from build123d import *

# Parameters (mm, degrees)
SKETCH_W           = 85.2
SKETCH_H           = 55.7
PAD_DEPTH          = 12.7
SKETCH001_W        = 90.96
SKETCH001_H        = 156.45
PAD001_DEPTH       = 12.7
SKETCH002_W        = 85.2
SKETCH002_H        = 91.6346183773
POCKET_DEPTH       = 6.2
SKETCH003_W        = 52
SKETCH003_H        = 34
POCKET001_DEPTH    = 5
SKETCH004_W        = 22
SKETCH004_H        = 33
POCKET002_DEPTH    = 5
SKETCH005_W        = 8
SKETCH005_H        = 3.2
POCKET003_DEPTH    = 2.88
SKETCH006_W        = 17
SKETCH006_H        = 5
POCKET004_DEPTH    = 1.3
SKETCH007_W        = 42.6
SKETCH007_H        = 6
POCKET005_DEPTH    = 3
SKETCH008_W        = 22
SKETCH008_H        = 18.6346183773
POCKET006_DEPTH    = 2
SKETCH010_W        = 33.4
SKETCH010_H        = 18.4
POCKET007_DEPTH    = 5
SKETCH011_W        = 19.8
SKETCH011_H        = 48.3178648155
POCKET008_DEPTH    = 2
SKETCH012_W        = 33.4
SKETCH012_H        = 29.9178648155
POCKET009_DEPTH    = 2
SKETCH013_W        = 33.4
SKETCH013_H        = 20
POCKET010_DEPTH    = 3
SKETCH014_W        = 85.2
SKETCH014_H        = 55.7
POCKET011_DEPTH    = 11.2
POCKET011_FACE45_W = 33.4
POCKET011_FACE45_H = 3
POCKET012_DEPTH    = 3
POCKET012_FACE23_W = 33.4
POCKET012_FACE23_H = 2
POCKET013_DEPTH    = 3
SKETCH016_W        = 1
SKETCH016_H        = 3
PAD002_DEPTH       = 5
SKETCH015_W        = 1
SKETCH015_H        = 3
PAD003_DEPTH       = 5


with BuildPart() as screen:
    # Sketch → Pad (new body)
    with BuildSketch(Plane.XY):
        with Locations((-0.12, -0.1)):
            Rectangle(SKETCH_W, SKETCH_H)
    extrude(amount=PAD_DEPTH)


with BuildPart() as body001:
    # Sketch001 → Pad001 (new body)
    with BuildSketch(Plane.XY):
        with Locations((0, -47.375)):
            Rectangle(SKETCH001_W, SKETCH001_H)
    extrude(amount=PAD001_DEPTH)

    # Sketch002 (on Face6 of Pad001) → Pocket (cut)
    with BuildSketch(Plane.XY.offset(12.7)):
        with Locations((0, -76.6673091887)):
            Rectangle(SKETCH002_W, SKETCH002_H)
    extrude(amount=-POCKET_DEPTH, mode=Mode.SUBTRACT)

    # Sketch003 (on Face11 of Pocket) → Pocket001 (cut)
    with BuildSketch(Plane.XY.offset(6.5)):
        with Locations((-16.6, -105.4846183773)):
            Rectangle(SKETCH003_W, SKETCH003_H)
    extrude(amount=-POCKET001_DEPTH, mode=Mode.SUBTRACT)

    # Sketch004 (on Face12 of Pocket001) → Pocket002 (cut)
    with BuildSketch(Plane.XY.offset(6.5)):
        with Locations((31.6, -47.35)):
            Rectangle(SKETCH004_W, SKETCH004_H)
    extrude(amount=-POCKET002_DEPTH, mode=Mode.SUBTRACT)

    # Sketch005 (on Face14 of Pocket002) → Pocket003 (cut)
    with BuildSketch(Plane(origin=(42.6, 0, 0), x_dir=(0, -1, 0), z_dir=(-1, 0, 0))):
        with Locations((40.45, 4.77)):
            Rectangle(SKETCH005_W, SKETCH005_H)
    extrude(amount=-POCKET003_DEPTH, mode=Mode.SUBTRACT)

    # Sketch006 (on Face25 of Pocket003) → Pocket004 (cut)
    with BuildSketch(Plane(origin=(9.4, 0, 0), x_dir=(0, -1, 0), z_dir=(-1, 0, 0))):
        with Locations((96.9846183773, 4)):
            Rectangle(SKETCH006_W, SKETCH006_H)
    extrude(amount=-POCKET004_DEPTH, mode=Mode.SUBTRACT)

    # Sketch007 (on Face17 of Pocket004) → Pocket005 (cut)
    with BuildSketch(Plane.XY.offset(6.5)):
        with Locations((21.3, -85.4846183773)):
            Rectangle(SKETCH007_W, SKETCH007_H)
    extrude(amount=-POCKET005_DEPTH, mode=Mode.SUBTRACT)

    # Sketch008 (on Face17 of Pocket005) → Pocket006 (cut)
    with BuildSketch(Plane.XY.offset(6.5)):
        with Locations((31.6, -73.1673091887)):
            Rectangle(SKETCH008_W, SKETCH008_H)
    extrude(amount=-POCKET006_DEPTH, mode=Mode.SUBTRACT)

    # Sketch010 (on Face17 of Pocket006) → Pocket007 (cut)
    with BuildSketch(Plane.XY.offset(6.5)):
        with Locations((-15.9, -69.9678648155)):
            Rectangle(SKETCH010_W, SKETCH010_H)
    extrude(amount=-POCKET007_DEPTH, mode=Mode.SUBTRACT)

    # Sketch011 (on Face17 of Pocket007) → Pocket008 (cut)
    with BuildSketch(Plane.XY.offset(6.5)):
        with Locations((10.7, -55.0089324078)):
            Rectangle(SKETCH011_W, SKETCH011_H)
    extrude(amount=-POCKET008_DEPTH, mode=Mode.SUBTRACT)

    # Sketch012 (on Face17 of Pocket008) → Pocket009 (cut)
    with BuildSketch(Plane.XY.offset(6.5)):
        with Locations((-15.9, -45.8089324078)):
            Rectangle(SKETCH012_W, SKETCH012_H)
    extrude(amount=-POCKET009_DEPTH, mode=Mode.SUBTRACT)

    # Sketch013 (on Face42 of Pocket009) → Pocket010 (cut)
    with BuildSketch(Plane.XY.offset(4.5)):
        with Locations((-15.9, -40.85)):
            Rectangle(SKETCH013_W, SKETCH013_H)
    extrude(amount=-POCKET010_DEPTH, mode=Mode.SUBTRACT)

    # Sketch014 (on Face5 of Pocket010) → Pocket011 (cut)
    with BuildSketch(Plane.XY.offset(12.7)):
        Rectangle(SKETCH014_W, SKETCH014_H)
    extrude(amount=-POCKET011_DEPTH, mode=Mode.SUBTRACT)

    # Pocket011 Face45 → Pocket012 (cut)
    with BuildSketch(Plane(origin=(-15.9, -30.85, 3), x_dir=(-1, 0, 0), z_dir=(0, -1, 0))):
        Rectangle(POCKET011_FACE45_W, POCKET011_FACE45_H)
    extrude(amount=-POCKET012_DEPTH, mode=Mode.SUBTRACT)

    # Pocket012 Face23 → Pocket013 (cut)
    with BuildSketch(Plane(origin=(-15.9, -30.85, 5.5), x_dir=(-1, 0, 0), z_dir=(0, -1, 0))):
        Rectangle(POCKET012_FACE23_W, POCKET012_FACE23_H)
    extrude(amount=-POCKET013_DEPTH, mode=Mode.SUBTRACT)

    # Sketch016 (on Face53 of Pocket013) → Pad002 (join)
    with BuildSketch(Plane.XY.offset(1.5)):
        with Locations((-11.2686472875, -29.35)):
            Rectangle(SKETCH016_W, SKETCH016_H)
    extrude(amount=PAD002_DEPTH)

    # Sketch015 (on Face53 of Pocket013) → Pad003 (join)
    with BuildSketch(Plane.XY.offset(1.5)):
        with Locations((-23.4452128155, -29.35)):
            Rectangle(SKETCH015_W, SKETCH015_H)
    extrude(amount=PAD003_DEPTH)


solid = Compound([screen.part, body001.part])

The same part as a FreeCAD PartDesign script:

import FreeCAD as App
import Part
import Sketcher

doc = App.newDocument("Part")
body = doc.addObject("PartDesign::Body", "Body")

sketch1 = body.newObject("Sketcher::SketchObject", "Sketch")
sketch1.AttachmentSupport = (doc.getObject("XY_Plane"), [""])
sketch1.MapMode = "FlatFace"
sketch1.addGeometry([
    Part.LineSegment(App.Vector(-42.72, 27.75, 0), App.Vector(-42.72, -27.95, 0)),
    Part.LineSegment(App.Vector(-42.72, -27.95, 0), App.Vector(42.48, -27.95, 0)),
    Part.LineSegment(App.Vector(42.48, -27.95, 0), App.Vector(42.48, 27.75, 0)),
    Part.LineSegment(App.Vector(42.48, 27.75, 0), App.Vector(-42.72, 27.75, 0)),
], False)
sketch1.addConstraint([
    Sketcher.Constraint("Coincident", 0, 2, 1, 1),
    Sketcher.Constraint("Coincident", 1, 2, 2, 1),
    Sketcher.Constraint("Coincident", 2, 2, 3, 1),
    Sketcher.Constraint("Coincident", 3, 2, 0, 1),
    Sketcher.Constraint("Vertical", 0),
    Sketcher.Constraint("Horizontal", 1),
    Sketcher.Constraint("Vertical", 2),
    Sketcher.Constraint("Horizontal", 3),
    Sketcher.Constraint("DistanceX", 1, 1, 1, 2, 85.2),
    Sketcher.Constraint("DistanceY", 0, 2, 0, 1, 55.7),
    Sketcher.Constraint("DistanceX", 0, 2, -1, 1, 42.72),
    Sketcher.Constraint("DistanceY", 0, 2, -1, 1, 27.95),
])
pad1 = body.newObject("PartDesign::Pad", "Pad")
pad1.Profile = sketch1
pad1.Length = 12.7
body2 = doc.addObject("PartDesign::Body", "Body001")

sketch2 = body2.newObject("Sketcher::SketchObject", "Sketch001")
sketch2.AttachmentSupport = (doc.getObject("XY_Plane001"), [""])
sketch2.MapMode = "FlatFace"
sketch2.addGeometry([
    Part.LineSegment(App.Vector(-45.48, 30.85, 0), App.Vector(-45.48, -125.6, 0)),
    Part.LineSegment(App.Vector(-45.48, -125.6, 0), App.Vector(45.48, -125.6, 0)),
    Part.LineSegment(App.Vector(45.48, -125.6, 0), App.Vector(45.48, 30.85, 0)),
    Part.LineSegment(App.Vector(45.48, 30.85, 0), App.Vector(-45.48, 30.85, 0)),
], False)
sketch2.addConstraint([
    Sketcher.Constraint("Coincident", 0, 2, 1, 1),
    Sketcher.Constraint("Coincident", 1, 2, 2, 1),
    Sketcher.Constraint("Coincident", 2, 2, 3, 1),
    Sketcher.Constraint("Coincident", 3, 2, 0, 1),
    Sketcher.Constraint("Vertical", 0),
    Sketcher.Constraint("Horizontal", 1),
    Sketcher.Constraint("Vertical", 2),
    Sketcher.Constraint("Horizontal", 3),
    Sketcher.Constraint("DistanceX", 1, 1, 1, 2, 90.96),
    Sketcher.Constraint("DistanceY", 0, 2, 0, 1, 156.45),
    Sketcher.Constraint("DistanceY", 0, 2, -1, 1, 125.6),
    Sketcher.Constraint("DistanceX", 0, 2, -1, 1, 45.48),
])
pad2 = body2.newObject("PartDesign::Pad", "Pad001")
pad2.Profile = sketch2
pad2.Length = 12.7

sketch3 = body2.newObject("Sketcher::SketchObject", "Sketch002")
sketch3.AttachmentSupport = (doc.getObject("XY_Plane001"), [""])
sketch3.MapMode = "FlatFace"
sketch3.AttachmentOffset = App.Placement(App.Vector(0, 0, 12.7), App.Rotation())
sketch3.addGeometry([
    Part.LineSegment(App.Vector(-42.6, -30.85, 0), App.Vector(-42.6, -122.484618, 0)),
    Part.LineSegment(App.Vector(-42.6, -122.484618, 0), App.Vector(42.6, -122.484618, 0)),
    Part.LineSegment(App.Vector(42.6, -122.484618, 0), App.Vector(42.6, -30.85, 0)),
    Part.LineSegment(App.Vector(42.6, -30.85, 0), App.Vector(-42.6, -30.85, 0)),
], False)
sketch3.addConstraint([
    Sketcher.Constraint("Coincident", 0, 2, 1, 1),
    Sketcher.Constraint("Coincident", 1, 2, 2, 1),
    Sketcher.Constraint("Coincident", 2, 2, 3, 1),
    Sketcher.Constraint("Coincident", 3, 2, 0, 1),
    Sketcher.Constraint("Vertical", 0),
    Sketcher.Constraint("Horizontal", 1),
    Sketcher.Constraint("Vertical", 2),
    Sketcher.Constraint("Horizontal", 3),
    Sketcher.Constraint("DistanceX", 1, 1, 1, 2, 85.2),
    Sketcher.Constraint("DistanceX", 0, 2, -1, 1, 42.6),
    Sketcher.Constraint("DistanceY", 2, 2, -1, 1, 30.85),
    Sketcher.Constraint("DistanceY", 0, 2, 0, 1, 91.634618),
])
pocket1 = body2.newObject("PartDesign::Pocket", "Pocket")
pocket1.Profile = sketch3
pocket1.Length = 6.2

sketch4 = body2.newObject("Sketcher::SketchObject", "Sketch003")
sketch4.AttachmentSupport = (doc.getObject("XY_Plane001"), [""])
sketch4.MapMode = "FlatFace"
sketch4.AttachmentOffset = App.Placement(App.Vector(0, 0, 6.5), App.Rotation())
sketch4.addGeometry([
    Part.LineSegment(App.Vector(-42.6, -88.484618, 0), App.Vector(-42.6, -122.484618, 0)),
    Part.LineSegment(App.Vector(-42.6, -122.484618, 0), App.Vector(9.4, -122.484618, 0)),
    Part.LineSegment(App.Vector(9.4, -122.484618, 0), App.Vector(9.4, -88.484618, 0)),
    Part.LineSegment(App.Vector(9.4, -88.484618, 0), App.Vector(-42.6, -88.484618, 0)),
], False)
sketch4.addConstraint([
    Sketcher.Constraint("Coincident", 0, 2, 1, 1),
    Sketcher.Constraint("Coincident", 1, 2, 2, 1),
    Sketcher.Constraint("Coincident", 2, 2, 3, 1),
    Sketcher.Constraint("Coincident", 3, 2, 0, 1),
    Sketcher.Constraint("Vertical", 0),
    Sketcher.Constraint("Horizontal", 1),
    Sketcher.Constraint("Vertical", 2),
    Sketcher.Constraint("Horizontal", 3),
    Sketcher.Constraint("DistanceX", 1, 1, 1, 2, 52.0),
    Sketcher.Constraint("DistanceY", 0, 2, 0, 1, 34.0),
    Sketcher.Constraint("DistanceX", 0, 2, -1, 1, 42.6),
    Sketcher.Constraint("DistanceY", 0, 2, -1, 1, 122.484618),
])
pocket2 = body2.newObject("PartDesign::Pocket", "Pocket001")
pocket2.Profile = sketch4
pocket2.Length = 5

sketch5 = body2.newObject("Sketcher::SketchObject", "Sketch004")
sketch5.AttachmentSupport = (doc.getObject("XY_Plane001"), [""])
sketch5.MapMode = "FlatFace"
sketch5.AttachmentOffset = App.Placement(App.Vector(0, 0, 6.5), App.Rotation())
sketch5.addGeometry([
    Part.LineSegment(App.Vector(20.6, -30.85, 0), App.Vector(20.6, -63.85, 0)),
    Part.LineSegment(App.Vector(20.6, -63.85, 0), App.Vector(42.6, -63.85, 0)),
    Part.LineSegment(App.Vector(42.6, -63.85, 0), App.Vector(42.6, -30.85, 0)),
    Part.LineSegment(App.Vector(42.6, -30.85, 0), App.Vector(20.6, -30.85, 0)),
], False)
sketch5.addConstraint([
    Sketcher.Constraint("Coincident", 0, 2, 1, 1),
    Sketcher.Constraint("Coincident", 1, 2, 2, 1),
    Sketcher.Constraint("Coincident", 2, 2, 3, 1),
    Sketcher.Constraint("Coincident", 3, 2, 0, 1),
    Sketcher.Constraint("Vertical", 0),
    Sketcher.Constraint("Horizontal", 1),
    Sketcher.Constraint("Vertical", 2),
    Sketcher.Constraint("Horizontal", 3),
    Sketcher.Constraint("DistanceX", 1, 1, 1, 2, 22.0),
    Sketcher.Constraint("DistanceY", 0, 2, 0, 1, 33.0),
    Sketcher.Constraint("DistanceX", -1, 1, 0, 2, 20.6),
    Sketcher.Constraint("DistanceY", 0, 2, -1, 1, 63.85),
])
pocket3 = body2.newObject("PartDesign::Pocket", "Pocket002")
pocket3.Profile = sketch5
pocket3.Length = 5

sketch6 = body2.newObject("Sketcher::SketchObject", "Sketch005")
sketch6.AttachmentSupport = (doc.getObject("YZ_Plane001"), [""])
sketch6.MapMode = "FlatFace"
sketch6.AttachmentOffset = App.Placement(App.Vector(0, 0, 42.6), App.Rotation())
sketch6.addGeometry([
    Part.LineSegment(App.Vector(-36.45, 6.37, 0), App.Vector(-36.45, 3.17, 0)),
    Part.LineSegment(App.Vector(-36.45, 3.17, 0), App.Vector(-44.45, 3.17, 0)),
    Part.LineSegment(App.Vector(-44.45, 3.17, 0), App.Vector(-44.45, 6.37, 0)),
    Part.LineSegment(App.Vector(-44.45, 6.37, 0), App.Vector(-36.45, 6.37, 0)),
], False)
sketch6.addConstraint([
    Sketcher.Constraint("Coincident", 0, 2, 1, 1),
    Sketcher.Constraint("Coincident", 1, 2, 2, 1),
    Sketcher.Constraint("Coincident", 2, 2, 3, 1),
    Sketcher.Constraint("Coincident", 3, 2, 0, 1),
    Sketcher.Constraint("Vertical", 0),
    Sketcher.Constraint("Horizontal", 1),
    Sketcher.Constraint("Vertical", 2),
    Sketcher.Constraint("Horizontal", 3),
    Sketcher.Constraint("DistanceX", 1, 2, 1, 1, 8.0),
    Sketcher.Constraint("DistanceY", 0, 2, 0, 1, 3.2),
    Sketcher.Constraint("DistanceX", 0, 2, -1, 1, 36.45),
    Sketcher.Constraint("DistanceY", -1, 1, 0, 2, 3.17),
])
pocket4 = body2.newObject("PartDesign::Pocket", "Pocket003")
pocket4.Profile = sketch6
pocket4.Length = 2.88
pocket4.Reversed = True

sketch7 = body2.newObject("Sketcher::SketchObject", "Sketch006")
sketch7.AttachmentSupport = (doc.getObject("YZ_Plane001"), [""])
sketch7.MapMode = "FlatFace"
sketch7.AttachmentOffset = App.Placement(App.Vector(0, 0, 9.4), App.Rotation())
sketch7.addGeometry([
    Part.LineSegment(App.Vector(-88.484618, 6.5, 0), App.Vector(-88.484618, 1.5, 0)),
    Part.LineSegment(App.Vector(-88.484618, 1.5, 0), App.Vector(-105.484618, 1.5, 0)),
    Part.LineSegment(App.Vector(-105.484618, 1.5, 0), App.Vector(-105.484618, 6.5, 0)),
    Part.LineSegment(App.Vector(-105.484618, 6.5, 0), App.Vector(-88.484618, 6.5, 0)),
], False)
sketch7.addConstraint([
    Sketcher.Constraint("Coincident", 0, 2, 1, 1),
    Sketcher.Constraint("Coincident", 1, 2, 2, 1),
    Sketcher.Constraint("Coincident", 2, 2, 3, 1),
    Sketcher.Constraint("Coincident", 3, 2, 0, 1),
    Sketcher.Constraint("Vertical", 0),
    Sketcher.Constraint("Horizontal", 1),
    Sketcher.Constraint("Vertical", 2),
    Sketcher.Constraint("Horizontal", 3),
    Sketcher.Constraint("DistanceX", 1, 2, 1, 1, 17.0),
    Sketcher.Constraint("DistanceY", 0, 2, 0, 1, 5.0),
    Sketcher.Constraint("DistanceY", -1, 1, 0, 2, 1.5),
    Sketcher.Constraint("DistanceX", 0, 2, -1, 1, 88.484618),
])
pocket5 = body2.newObject("PartDesign::Pocket", "Pocket004")
pocket5.Profile = sketch7
pocket5.Length = 1.3
pocket5.Reversed = True

sketch8 = body2.newObject("Sketcher::SketchObject", "Sketch007")
sketch8.AttachmentSupport = (doc.getObject("XY_Plane001"), [""])
sketch8.MapMode = "FlatFace"
sketch8.AttachmentOffset = App.Placement(App.Vector(0, 0, 6.5), App.Rotation())
sketch8.addGeometry([
    Part.LineSegment(App.Vector(0, -82.484618, 0), App.Vector(0, -88.484618, 0)),
    Part.LineSegment(App.Vector(0, -88.484618, 0), App.Vector(42.6, -88.484618, 0)),
    Part.LineSegment(App.Vector(42.6, -88.484618, 0), App.Vector(42.6, -82.484618, 0)),
    Part.LineSegment(App.Vector(42.6, -82.484618, 0), App.Vector(0, -82.484618, 0)),
], False)
sketch8.addConstraint([
    Sketcher.Constraint("Coincident", 0, 2, 1, 1),
    Sketcher.Constraint("Coincident", 1, 2, 2, 1),
    Sketcher.Constraint("Coincident", 2, 2, 3, 1),
    Sketcher.Constraint("Coincident", 3, 2, 0, 1),
    Sketcher.Constraint("Vertical", 0),
    Sketcher.Constraint("Horizontal", 1),
    Sketcher.Constraint("Vertical", 2),
    Sketcher.Constraint("Horizontal", 3),
    Sketcher.Constraint("PointOnObject", 0, 2, -2),
    Sketcher.Constraint("DistanceY", 0, 2, 0, 1, 6.0),
    Sketcher.Constraint("DistanceX", 1, 1, 1, 2, 42.6),
    Sketcher.Constraint("DistanceY", 0, 2, -1, 1, 88.484618),
])
pocket6 = body2.newObject("PartDesign::Pocket", "Pocket005")
pocket6.Profile = sketch8
pocket6.Length = 3

sketch9 = body2.newObject("Sketcher::SketchObject", "Sketch008")
sketch9.AttachmentSupport = (doc.getObject("XY_Plane001"), [""])
sketch9.MapMode = "FlatFace"
sketch9.AttachmentOffset = App.Placement(App.Vector(0, 0, 6.5), App.Rotation())
sketch9.addGeometry([
    Part.LineSegment(App.Vector(20.6, -63.85, 0), App.Vector(20.6, -82.484618, 0)),
    Part.LineSegment(App.Vector(20.6, -82.484618, 0), App.Vector(42.6, -82.484618, 0)),
    Part.LineSegment(App.Vector(42.6, -82.484618, 0), App.Vector(42.6, -63.85, 0)),
    Part.LineSegment(App.Vector(42.6, -63.85, 0), App.Vector(20.6, -63.85, 0)),
], False)
sketch9.addConstraint([
    Sketcher.Constraint("Coincident", 0, 2, 1, 1),
    Sketcher.Constraint("Coincident", 1, 2, 2, 1),
    Sketcher.Constraint("Coincident", 2, 2, 3, 1),
    Sketcher.Constraint("Coincident", 3, 2, 0, 1),
    Sketcher.Constraint("Vertical", 0),
    Sketcher.Constraint("Horizontal", 1),
    Sketcher.Constraint("Vertical", 2),
    Sketcher.Constraint("Horizontal", 3),
    Sketcher.Constraint("DistanceX", 1, 1, 1, 2, 22.0),
    Sketcher.Constraint("DistanceX", -1, 1, 0, 2, 20.6),
    Sketcher.Constraint("DistanceY", 2, 2, -1, 1, 63.85),
    Sketcher.Constraint("DistanceY", 0, 2, 0, 1, 18.634618),
])
pocket7 = body2.newObject("PartDesign::Pocket", "Pocket006")
pocket7.Profile = sketch9
pocket7.Length = 2

sketch10 = body2.newObject("Sketcher::SketchObject", "Sketch009")
sketch10.AttachmentSupport = (doc.getObject("XY_Plane001"), [""])
sketch10.MapMode = "FlatFace"
sketch10.AttachmentOffset = App.Placement(App.Vector(0, 0, 6.5), App.Rotation())
sketch10.addGeometry([
    Part.LineSegment(App.Vector(-32.6, -60.767865, 0), App.Vector(-32.6, -79.167865, 0)),
    Part.LineSegment(App.Vector(-32.6, -79.167865, 0), App.Vector(0.8, -79.167865, 0)),
    Part.LineSegment(App.Vector(0.8, -79.167865, 0), App.Vector(0.8, -60.767865, 0)),
    Part.LineSegment(App.Vector(0.8, -60.767865, 0), App.Vector(-32.6, -60.767865, 0)),
], False)
sketch10.addConstraint([
    Sketcher.Constraint("Coincident", 0, 2, 1, 1),
    Sketcher.Constraint("Coincident", 1, 2, 2, 1),
    Sketcher.Constraint("Coincident", 2, 2, 3, 1),
    Sketcher.Constraint("Coincident", 3, 2, 0, 1),
    Sketcher.Constraint("Vertical", 0),
    Sketcher.Constraint("Horizontal", 1),
    Sketcher.Constraint("Vertical", 2),
    Sketcher.Constraint("Horizontal", 3),
    Sketcher.Constraint("DistanceX", 1, 1, 1, 2, 33.4),
    Sketcher.Constraint("DistanceY", 0, 2, 0, 1, 18.4),
    Sketcher.Constraint("DistanceX", 0, 2, -1, 1, 32.6),
    Sketcher.Constraint("DistanceY", 0, 2, -1, 1, 79.167865),
])
pocket8 = body2.newObject("PartDesign::Pocket", "Pocket007")
pocket8.Profile = sketch10
pocket8.Length = 5

sketch11 = body2.newObject("Sketcher::SketchObject", "Sketch010")
sketch11.AttachmentSupport = (doc.getObject("XY_Plane001"), [""])
sketch11.MapMode = "FlatFace"
sketch11.AttachmentOffset = App.Placement(App.Vector(0, 0, 6.5), App.Rotation())
sketch11.addGeometry([
    Part.LineSegment(App.Vector(0.8, -30.85, 0), App.Vector(0.8, -79.167865, 0)),
    Part.LineSegment(App.Vector(0.8, -79.167865, 0), App.Vector(20.6, -79.167865, 0)),
    Part.LineSegment(App.Vector(20.6, -79.167865, 0), App.Vector(20.6, -30.85, 0)),
    Part.LineSegment(App.Vector(20.6, -30.85, 0), App.Vector(0.8, -30.85, 0)),
], False)
sketch11.addConstraint([
    Sketcher.Constraint("Coincident", 0, 2, 1, 1),
    Sketcher.Constraint("Coincident", 1, 2, 2, 1),
    Sketcher.Constraint("Coincident", 2, 2, 3, 1),
    Sketcher.Constraint("Coincident", 3, 2, 0, 1),
    Sketcher.Constraint("Vertical", 0),
    Sketcher.Constraint("Horizontal", 1),
    Sketcher.Constraint("Vertical", 2),
    Sketcher.Constraint("Horizontal", 3),
    Sketcher.Constraint("DistanceX", 1, 1, 1, 2, 19.8),
    Sketcher.Constraint("DistanceX", -1, 1, 0, 2, 0.8),
    Sketcher.Constraint("DistanceY", 2, 2, -1, 1, 30.85),
    Sketcher.Constraint("DistanceY", 0, 2, 0, 1, 48.317865),
])
pocket9 = body2.newObject("PartDesign::Pocket", "Pocket008")
pocket9.Profile = sketch11
pocket9.Length = 2

sketch12 = body2.newObject("Sketcher::SketchObject", "Sketch011")
sketch12.AttachmentSupport = (doc.getObject("XY_Plane001"), [""])
sketch12.MapMode = "FlatFace"
sketch12.AttachmentOffset = App.Placement(App.Vector(0, 0, 6.5), App.Rotation())
sketch12.addGeometry([
    Part.LineSegment(App.Vector(-32.6, -30.85, 0), App.Vector(-32.6, -60.767865, 0)),
    Part.LineSegment(App.Vector(-32.6, -60.767865, 0), App.Vector(0.8, -60.767865, 0)),
    Part.LineSegment(App.Vector(0.8, -60.767865, 0), App.Vector(0.8, -30.85, 0)),
    Part.LineSegment(App.Vector(0.8, -30.85, 0), App.Vector(-32.6, -30.85, 0)),
], False)
sketch12.addConstraint([
    Sketcher.Constraint("Coincident", 0, 2, 1, 1),
    Sketcher.Constraint("Coincident", 1, 2, 2, 1),
    Sketcher.Constraint("Coincident", 2, 2, 3, 1),
    Sketcher.Constraint("Coincident", 3, 2, 0, 1),
    Sketcher.Constraint("Vertical", 0),
    Sketcher.Constraint("Horizontal", 1),
    Sketcher.Constraint("Vertical", 2),
    Sketcher.Constraint("Horizontal", 3),
    Sketcher.Constraint("DistanceX", 1, 1, 1, 2, 33.4),
    Sketcher.Constraint("DistanceX", 0, 2, -1, 1, 32.6),
    Sketcher.Constraint("DistanceY", 2, 2, -1, 1, 30.85),
    Sketcher.Constraint("DistanceY", 0, 2, 0, 1, 29.917865),
])
pocket10 = body2.newObject("PartDesign::Pocket", "Pocket009")
pocket10.Profile = sketch12
pocket10.Length = 2

sketch13 = body2.newObject("Sketcher::SketchObject", "Sketch012")
sketch13.AttachmentSupport = (doc.getObject("XY_Plane001"), [""])
sketch13.MapMode = "FlatFace"
sketch13.AttachmentOffset = App.Placement(App.Vector(0, 0, 4.5), App.Rotation())
sketch13.addGeometry([
    Part.LineSegment(App.Vector(-32.6, -30.85, 0), App.Vector(-32.6, -50.85, 0)),
    Part.LineSegment(App.Vector(-32.6, -50.85, 0), App.Vector(0.8, -50.85, 0)),
    Part.LineSegment(App.Vector(0.8, -50.85, 0), App.Vector(0.8, -30.85, 0)),
    Part.LineSegment(App.Vector(0.8, -30.85, 0), App.Vector(-32.6, -30.85, 0)),
], False)
sketch13.addConstraint([
    Sketcher.Constraint("Coincident", 0, 2, 1, 1),
    Sketcher.Constraint("Coincident", 1, 2, 2, 1),
    Sketcher.Constraint("Coincident", 2, 2, 3, 1),
    Sketcher.Constraint("Coincident", 3, 2, 0, 1),
    Sketcher.Constraint("Vertical", 0),
    Sketcher.Constraint("Horizontal", 1),
    Sketcher.Constraint("Vertical", 2),
    Sketcher.Constraint("Horizontal", 3),
    Sketcher.Constraint("DistanceY", 0, 2, 0, 1, 20.0),
    Sketcher.Constraint("DistanceX", 1, 1, 1, 2, 33.4),
    Sketcher.Constraint("DistanceX", 0, 2, -1, 1, 32.6),
    Sketcher.Constraint("DistanceY", 0, 2, -1, 1, 50.85),
])
pocket11 = body2.newObject("PartDesign::Pocket", "Pocket010")
pocket11.Profile = sketch13
pocket11.Length = 3

sketch14 = body2.newObject("Sketcher::SketchObject", "Sketch013")
sketch14.AttachmentSupport = (doc.getObject("XY_Plane001"), [""])
sketch14.MapMode = "FlatFace"
sketch14.AttachmentOffset = App.Placement(App.Vector(0, 0, 12.7), App.Rotation())
sketch14.addGeometry([
    Part.LineSegment(App.Vector(-42.6, 27.85, 0), App.Vector(-42.6, -27.85, 0)),
    Part.LineSegment(App.Vector(-42.6, -27.85, 0), App.Vector(42.6, -27.85, 0)),
    Part.LineSegment(App.Vector(42.6, -27.85, 0), App.Vector(42.6, 27.85, 0)),
    Part.LineSegment(App.Vector(42.6, 27.85, 0), App.Vector(-42.6, 27.85, 0)),
], False)
sketch14.addConstraint([
    Sketcher.Constraint("Coincident", 0, 2, 1, 1),
    Sketcher.Constraint("Coincident", 1, 2, 2, 1),
    Sketcher.Constraint("Coincident", 2, 2, 3, 1),
    Sketcher.Constraint("Coincident", 3, 2, 0, 1),
    Sketcher.Constraint("Vertical", 0),
    Sketcher.Constraint("Horizontal", 1),
    Sketcher.Constraint("Vertical", 2),
    Sketcher.Constraint("Horizontal", 3),
    Sketcher.Constraint("Symmetric", 0, 2, 2, 2, -1, 1),
    Sketcher.Constraint("DistanceX", 1, 1, 1, 2, 85.2),
    Sketcher.Constraint("DistanceY", 0, 2, 0, 1, 55.7),
])
pocket12 = body2.newObject("PartDesign::Pocket", "Pocket011")
pocket12.Profile = sketch14
pocket12.Length = 11.2

sketch15 = body2.newObject("Sketcher::SketchObject", "Sketch014")
sketch15.AttachmentSupport = (doc.getObject("XZ_Plane001"), [""])
sketch15.MapMode = "FlatFace"
sketch15.AttachmentOffset = App.Placement(App.Vector(0, 0, 30.85), App.Rotation())
sketch15.addGeometry([
    Part.LineSegment(App.Vector(0.8, 1.5, 0), App.Vector(0.8, 4.5, 0)),
    Part.LineSegment(App.Vector(0.8, 4.5, 0), App.Vector(-32.6, 4.5, 0)),
    Part.LineSegment(App.Vector(-32.6, 4.5, 0), App.Vector(-32.6, 1.5, 0)),
    Part.LineSegment(App.Vector(-32.6, 1.5, 0), App.Vector(0.8, 1.5, 0)),
], False)
sketch15.addConstraint([
    Sketcher.Constraint("Coincident", 0, 2, 1, 1),
    Sketcher.Constraint("Coincident", 1, 2, 2, 1),
    Sketcher.Constraint("Coincident", 2, 2, 3, 1),
    Sketcher.Constraint("Coincident", 3, 2, 0, 1),
    Sketcher.Constraint("Vertical", 0),
    Sketcher.Constraint("Horizontal", 1),
    Sketcher.Constraint("Vertical", 2),
    Sketcher.Constraint("Horizontal", 3),
    Sketcher.Constraint("DistanceY", 0, 1, 0, 2, 3.0),
    Sketcher.Constraint("DistanceX", 1, 2, 1, 1, 33.4),
    Sketcher.Constraint("DistanceX", -1, 1, 0, 2, 0.8),
    Sketcher.Constraint("DistanceY", -1, 1, 0, 2, 4.5),
])
pocket13 = body2.newObject("PartDesign::Pocket", "Pocket012")
pocket13.Profile = sketch15
pocket13.Length = 3

sketch16 = body2.newObject("Sketcher::SketchObject", "Sketch015")
sketch16.AttachmentSupport = (doc.getObject("XZ_Plane001"), [""])
sketch16.MapMode = "FlatFace"
sketch16.AttachmentOffset = App.Placement(App.Vector(0, 0, 30.85), App.Rotation())
sketch16.addGeometry([
    Part.LineSegment(App.Vector(0.8, 4.5, 0), App.Vector(0.8, 6.5, 0)),
    Part.LineSegment(App.Vector(0.8, 6.5, 0), App.Vector(-32.6, 6.5, 0)),
    Part.LineSegment(App.Vector(-32.6, 6.5, 0), App.Vector(-32.6, 4.5, 0)),
    Part.LineSegment(App.Vector(-32.6, 4.5, 0), App.Vector(0.8, 4.5, 0)),
], False)
sketch16.addConstraint([
    Sketcher.Constraint("Coincident", 0, 2, 1, 1),
    Sketcher.Constraint("Coincident", 1, 2, 2, 1),
    Sketcher.Constraint("Coincident", 2, 2, 3, 1),
    Sketcher.Constraint("Coincident", 3, 2, 0, 1),
    Sketcher.Constraint("Vertical", 0),
    Sketcher.Constraint("Horizontal", 1),
    Sketcher.Constraint("Vertical", 2),
    Sketcher.Constraint("Horizontal", 3),
    Sketcher.Constraint("DistanceY", 0, 1, 0, 2, 2.0),
    Sketcher.Constraint("DistanceX", 1, 2, 1, 1, 33.4),
    Sketcher.Constraint("DistanceX", -1, 1, 0, 2, 0.8),
    Sketcher.Constraint("DistanceY", -1, 1, 0, 2, 6.5),
])
pocket14 = body2.newObject("PartDesign::Pocket", "Pocket013")
pocket14.Profile = sketch16
pocket14.Length = 3

sketch17 = body2.newObject("Sketcher::SketchObject", "Sketch016")
sketch17.AttachmentSupport = (doc.getObject("XY_Plane001"), [""])
sketch17.MapMode = "FlatFace"
sketch17.AttachmentOffset = App.Placement(App.Vector(0, 0, 1.5), App.Rotation())
sketch17.addGeometry([
    Part.LineSegment(App.Vector(-11.768647, -27.85, 0), App.Vector(-11.768647, -30.85, 0)),
    Part.LineSegment(App.Vector(-11.768647, -30.85, 0), App.Vector(-10.768647, -30.85, 0)),
    Part.LineSegment(App.Vector(-10.768647, -30.85, 0), App.Vector(-10.768647, -27.85, 0)),
    Part.LineSegment(App.Vector(-10.768647, -27.85, 0), App.Vector(-11.768647, -27.85, 0)),
], False)
sketch17.addConstraint([
    Sketcher.Constraint("Coincident", 0, 2, 1, 1),
    Sketcher.Constraint("Coincident", 1, 2, 2, 1),
    Sketcher.Constraint("Coincident", 2, 2, 3, 1),
    Sketcher.Constraint("Coincident", 3, 2, 0, 1),
    Sketcher.Constraint("Vertical", 0),
    Sketcher.Constraint("Horizontal", 1),
    Sketcher.Constraint("Vertical", 2),
    Sketcher.Constraint("Horizontal", 3),
    Sketcher.Constraint("DistanceX", 1, 1, 1, 2, 1.0),
    Sketcher.Constraint("DistanceY", 0, 2, 0, 1, 3.0),
    Sketcher.Constraint("DistanceY", 0, 2, -1, 1, 30.85),
    Sketcher.Constraint("DistanceX", 0, 2, -1, 1, 11.768647),
])
pad3 = body2.newObject("PartDesign::Pad", "Pad002")
pad3.Profile = sketch17
pad3.Length = 5

sketch18 = body2.newObject("Sketcher::SketchObject", "Sketch017")
sketch18.AttachmentSupport = (doc.getObject("XY_Plane001"), [""])
sketch18.MapMode = "FlatFace"
sketch18.AttachmentOffset = App.Placement(App.Vector(0, 0, 1.5), App.Rotation())
sketch18.addGeometry([
    Part.LineSegment(App.Vector(-23.945213, -27.85, 0), App.Vector(-23.945213, -30.85, 0)),
    Part.LineSegment(App.Vector(-23.945213, -30.85, 0), App.Vector(-22.945213, -30.85, 0)),
    Part.LineSegment(App.Vector(-22.945213, -30.85, 0), App.Vector(-22.945213, -27.85, 0)),
    Part.LineSegment(App.Vector(-22.945213, -27.85, 0), App.Vector(-23.945213, -27.85, 0)),
], False)
sketch18.addConstraint([
    Sketcher.Constraint("Coincident", 0, 2, 1, 1),
    Sketcher.Constraint("Coincident", 1, 2, 2, 1),
    Sketcher.Constraint("Coincident", 2, 2, 3, 1),
    Sketcher.Constraint("Coincident", 3, 2, 0, 1),
    Sketcher.Constraint("Vertical", 0),
    Sketcher.Constraint("Horizontal", 1),
    Sketcher.Constraint("Vertical", 2),
    Sketcher.Constraint("Horizontal", 3),
    Sketcher.Constraint("DistanceX", 1, 1, 1, 2, 1.0),
    Sketcher.Constraint("DistanceY", 0, 2, 0, 1, 3.0),
    Sketcher.Constraint("DistanceY", 0, 2, -1, 1, 30.85),
    Sketcher.Constraint("DistanceX", 0, 2, -1, 1, 23.945213),
])
pad4 = body2.newObject("PartDesign::Pad", "Pad003")
pad4.Profile = sketch18
pad4.Length = 5

doc.recompute()
